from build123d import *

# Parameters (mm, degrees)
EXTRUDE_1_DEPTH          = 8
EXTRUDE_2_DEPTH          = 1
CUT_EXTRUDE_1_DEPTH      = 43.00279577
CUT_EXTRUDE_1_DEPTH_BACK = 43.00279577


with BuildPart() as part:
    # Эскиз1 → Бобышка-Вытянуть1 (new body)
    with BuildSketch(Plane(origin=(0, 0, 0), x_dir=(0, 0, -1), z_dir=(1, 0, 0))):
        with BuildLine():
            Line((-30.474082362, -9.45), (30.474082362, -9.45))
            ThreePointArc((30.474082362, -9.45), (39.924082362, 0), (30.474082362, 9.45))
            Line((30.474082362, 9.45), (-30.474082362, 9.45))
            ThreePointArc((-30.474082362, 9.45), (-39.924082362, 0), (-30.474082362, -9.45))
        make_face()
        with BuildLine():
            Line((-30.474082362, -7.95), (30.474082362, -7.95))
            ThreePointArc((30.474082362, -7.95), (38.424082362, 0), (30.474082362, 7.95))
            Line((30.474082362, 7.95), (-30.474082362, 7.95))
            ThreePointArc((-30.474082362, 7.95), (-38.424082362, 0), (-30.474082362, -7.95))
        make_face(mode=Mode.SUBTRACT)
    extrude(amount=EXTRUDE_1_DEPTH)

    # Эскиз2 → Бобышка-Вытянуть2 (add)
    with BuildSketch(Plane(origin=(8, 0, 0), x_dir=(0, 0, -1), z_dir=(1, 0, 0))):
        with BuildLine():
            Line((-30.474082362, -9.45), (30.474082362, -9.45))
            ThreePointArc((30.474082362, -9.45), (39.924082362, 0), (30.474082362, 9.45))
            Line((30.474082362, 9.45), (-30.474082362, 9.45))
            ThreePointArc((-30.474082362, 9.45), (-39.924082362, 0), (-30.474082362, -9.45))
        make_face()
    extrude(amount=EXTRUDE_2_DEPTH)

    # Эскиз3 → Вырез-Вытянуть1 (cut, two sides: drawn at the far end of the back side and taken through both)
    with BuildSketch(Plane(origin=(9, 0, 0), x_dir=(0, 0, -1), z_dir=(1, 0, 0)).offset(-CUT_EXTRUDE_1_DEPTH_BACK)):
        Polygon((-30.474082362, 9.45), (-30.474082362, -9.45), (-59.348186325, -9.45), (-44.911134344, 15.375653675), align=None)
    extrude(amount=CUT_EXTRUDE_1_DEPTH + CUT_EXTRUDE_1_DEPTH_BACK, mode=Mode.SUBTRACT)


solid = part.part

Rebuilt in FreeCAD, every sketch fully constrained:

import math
import FreeCAD as App
import Part
import Sketcher


def add_polygon(sketch, points):
    """Adds a closed chain of lines whose ends are joined by coincident constraints."""
    first, n = sketch.GeometryCount, len(points)
    for a, b in zip(points, points[1:] + points[:1]):
        sketch.addGeometry(Part.LineSegment(App.Vector(*a, 0), App.Vector(*b, 0)), False)
    for i in range(n):
        sketch.addConstraint(Sketcher.Constraint("Coincident", first + i, 2, first + (i + 1) % n, 1))

doc = App.newDocument("Part")
body = doc.addObject("PartDesign::Body", "Body")

# Sketch on YZ plane
sketch1 = doc.addObject("Sketcher::SketchObject", "Sketch")
body.addObject(sketch1)
sketch1.AttachmentSupport = (doc.YZ_Plane, [""])
sketch1.MapMode = "FlatFace"
sketch1.addGeometry([
    Part.LineSegment(App.Vector(-9, 30, 0), App.Vector(-9, -30, 0)),  # 0
    Part.ArcOfCircle(Part.Circle(App.Vector(0, -30, 0), App.Vector(0, 0, 1), 9), math.radians(180), math.radians(360)),  # 1
    Part.LineSegment(App.Vector(9, -30, 0), App.Vector(9, 30, 0)),  # 2
    Part.ArcOfCircle(Part.Circle(App.Vector(0, 30, 0), App.Vector(0, 0, 1), 9), math.radians(0), math.radians(180)),  # 3
    Part.LineSegment(App.Vector(-8, -30, 0), App.Vector(-8, 30, 0)),  # 4
    Part.ArcOfCircle(Part.Circle(App.Vector(0, 30, 0), App.Vector(0, 0, 1), 8), math.radians(0), math.radians(180)),  # 5
    Part.LineSegment(App.Vector(8, 30, 0), App.Vector(8, -30, 0)),  # 6
    Part.ArcOfCircle(Part.Circle(App.Vector(0, -30, 0), App.Vector(0, 0, 1), 8), math.radians(180), math.radians(360)),  # 7
], False)
sketch1.addConstraint([
    Sketcher.Constraint("Tangent", 0, 2, 1, 1),
    Sketcher.Constraint("Tangent", 1, 2, 2, 1),
    Sketcher.Constraint("Tangent", 2, 2, 3, 1),
    Sketcher.Constraint("Tangent", 3, 2, 0, 1),
    Sketcher.Constraint("Tangent", 4, 2, 5, 2),
    Sketcher.Constraint("Tangent", 5, 1, 6, 1),
    Sketcher.Constraint("Tangent", 6, 2, 7, 2),
    Sketcher.Constraint("Tangent", 7, 1, 4, 1),
    Sketcher.Constraint("Vertical", 0),
    Sketcher.Constraint("Vertical", 2),
    Sketcher.Constraint("Vertical", 4),
    Sketcher.Constraint("Vertical", 6),
    Sketcher.Constraint("Coincident", 5, 3, 3, 3),
    Sketcher.Constraint("Symmetric", 1, 3, 3, 3, -1, 1),
    Sketcher.Constraint("Horizontal", 7, 3, 0, 2),
    Sketcher.Constraint("Radius", 1, 9.45),
    Sketcher.Constraint("Radius", 5, 7.95),
    Sketcher.Constraint("DistanceY", 0, 2, 0, 1, 60.948165),
])
pad1 = doc.addObject("PartDesign::Pad", "Pad")
body.addObject(pad1)
pad1.Profile = sketch1
pad1.Length = 8

# Sketch on YZ plane
sketch2 = doc.addObject("Sketcher::SketchObject", "Sketch001")
body.addObject(sketch2)
sketch2.AttachmentSupport = (doc.YZ_Plane, [""])
sketch2.MapMode = "FlatFace"
sketch2.AttachmentOffset = App.Placement(App.Vector(0, 0, 8), App.Rotation())
sketch2.addGeometry([
    Part.LineSegment(App.Vector(-9, 30, 0), App.Vector(-9, -30, 0)),
    Part.ArcOfCircle(Part.Circle(App.Vector(0, -30, 0), App.Vector(0, 0, 1), 9), math.radians(180), math.radians(360)),
    Part.LineSegment(App.Vector(9, -30, 0), App.Vector(9, 30, 0)),
    Part.ArcOfCircle(Part.Circle(App.Vector(0, 30, 0), App.Vector(0, 0, 1), 9), math.radians(0), math.radians(180)),
], False)
sketch2.addConstraint([
    Sketcher.Constraint("Tangent", 0, 2, 1, 1),
    Sketcher.Constraint("Tangent", 1, 2, 2, 1),
    Sketcher.Constraint("Tangent", 2, 2, 3, 1),
    Sketcher.Constraint("Tangent", 3, 2, 0, 1),
    Sketcher.Constraint("Vertical", 0),
    Sketcher.Constraint("Vertical", 2),
    Sketcher.Constraint("Symmetric", 1, 3, 3, 3, -1, 1),
    Sketcher.Constraint("Radius", 1, 9.45),
    Sketcher.Constraint("DistanceY", 0, 2, 0, 1, 60.948165),
])
pad2 = doc.addObject("PartDesign::Pad", "Pad001")
body.addObject(pad2)
pad2.Profile = sketch2
pad2.Length = 1

# Sketch on YZ plane
sketch3 = doc.addObject("Sketcher::SketchObject", "Sketch002")
body.addObject(sketch3)
sketch3.AttachmentSupport = (doc.YZ_Plane, [""])
sketch3.MapMode = "FlatFace"
sketch3.AttachmentOffset = App.Placement(App.Vector(0, 0, 9), App.Rotation())
add_polygon(sketch3, [(-9, 30), (9, 30), (15, 45), (-9, 59)])  # lines 0-3
sketch3.addConstraint([
    Sketcher.Constraint("Horizontal", 0),
    Sketcher.Constraint("Vertical", 3),
    Sketcher.Constraint("DistanceX", 0, 1, 0, 2, 18.9),
    Sketcher.Constraint("DistanceX", -1, 1, 0, 2, 9.45),
    Sketcher.Constraint("DistanceY", 3, 2, 3, 1, 28.874104),
    Sketcher.Constraint("DistanceY", 0, 2, 1, 2, 14.437052),
    Sketcher.Constraint("Distance", 1, 15.605827),
    Sketcher.Constraint("DistanceY", -1, 1, 0, 2, 30.474082),
])
pocket1 = doc.addObject("PartDesign::Pocket", "Pocket")
body.addObject(pocket1)
pocket1.Profile = sketch3
pocket1.Type = "ThroughAll"
pocket1.Midplane = True

doc.recompute()
